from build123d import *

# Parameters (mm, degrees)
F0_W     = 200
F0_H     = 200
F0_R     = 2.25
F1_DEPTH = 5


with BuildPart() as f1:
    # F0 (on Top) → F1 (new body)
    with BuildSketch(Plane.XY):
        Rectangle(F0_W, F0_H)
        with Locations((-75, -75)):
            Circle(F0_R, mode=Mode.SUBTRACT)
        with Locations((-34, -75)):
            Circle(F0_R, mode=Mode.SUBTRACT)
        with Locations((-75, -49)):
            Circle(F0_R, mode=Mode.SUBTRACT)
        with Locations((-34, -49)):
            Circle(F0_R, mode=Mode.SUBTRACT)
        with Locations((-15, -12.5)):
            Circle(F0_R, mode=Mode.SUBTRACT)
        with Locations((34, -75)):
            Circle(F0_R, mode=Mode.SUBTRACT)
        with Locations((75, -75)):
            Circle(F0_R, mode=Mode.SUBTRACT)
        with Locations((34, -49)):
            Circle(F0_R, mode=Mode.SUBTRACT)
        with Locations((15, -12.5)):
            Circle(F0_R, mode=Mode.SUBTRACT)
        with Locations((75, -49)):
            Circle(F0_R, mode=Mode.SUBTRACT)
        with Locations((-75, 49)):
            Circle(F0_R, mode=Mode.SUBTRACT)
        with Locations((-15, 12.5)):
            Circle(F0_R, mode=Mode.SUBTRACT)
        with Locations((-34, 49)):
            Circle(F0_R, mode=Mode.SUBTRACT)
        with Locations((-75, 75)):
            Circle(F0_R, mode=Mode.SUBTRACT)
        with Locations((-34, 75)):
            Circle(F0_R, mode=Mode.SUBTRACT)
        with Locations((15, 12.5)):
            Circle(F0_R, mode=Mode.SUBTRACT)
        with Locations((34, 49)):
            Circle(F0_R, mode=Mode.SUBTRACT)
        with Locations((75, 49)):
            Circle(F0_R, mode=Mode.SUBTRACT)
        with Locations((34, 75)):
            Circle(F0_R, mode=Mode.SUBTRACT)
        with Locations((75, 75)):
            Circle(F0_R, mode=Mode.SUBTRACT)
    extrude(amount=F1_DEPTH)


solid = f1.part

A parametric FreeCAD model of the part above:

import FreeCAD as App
import Part
import Sketcher
from FreeCAD import Vector


def add_polygon(sketch, points):
    """Adds a closed chain of lines whose ends are joined by coincident constraints."""
    first, n = sketch.GeometryCount, len(points)
    for a, b in zip(points, points[1:] + points[:1]):
        sketch.addGeometry(Part.LineSegment(App.Vector(*a, 0), App.Vector(*b, 0)), False)
    for i in range(n):
        sketch.addConstraint(Sketcher.Constraint("Coincident", first + i, 2, first + (i + 1) % n, 1))

doc = App.newDocument("Part")
body = doc.addObject("PartDesign::Body", "Body")

# Sketch on XY plane
sketch1 = doc.addObject("Sketcher::SketchObject", "Sketch")
body.addObject(sketch1)
sketch1.AttachmentSupport = (doc.XY_Plane, [""])
sketch1.MapMode = "FlatFace"
add_polygon(sketch1, [(-100, 100), (-100, -100), (100, -100), (100, 100)])  # lines 0-3
sketch1.addGeometry(Part.Circle(Vector(-75, -75, 0), Vector(0, 0, 1), 2.25), False)  # 4
sketch1.addGeometry(Part.Circle(Vector(-75, -49, 0), Vector(0, 0, 1), 2.25), False)  # 5
sketch1.addGeometry(Part.Circle(Vector(-34, -75, 0), Vector(0, 0, 1), 2.25), False)  # 6
sketch1.addGeometry(Part.Circle(Vector(-34, -49, 0), Vector(0, 0, 1), 2.25), False)  # 7
sketch1.addGeometry(Part.Circle(Vector(-15, -12.5, 0), Vector(0, 0, 1), 2.25), False)  # 8
sketch1.addGeometry(Part.Circle(Vector(34, -75, 0), Vector(0, 0, 1), 2.25), False)  # 9
sketch1.addGeometry(Part.Circle(Vector(34, -49, 0), Vector(0, 0, 1), 2.25), False)  # 10
sketch1.addGeometry(Part.Circle(Vector(75, -75, 0), Vector(0, 0, 1), 2.25), False)  # 11
sketch1.addGeometry(Part.Circle(Vector(75, -49, 0), Vector(0, 0, 1), 2.25), False)  # 12
sketch1.addGeometry(Part.Circle(Vector(15, -12.5, 0), Vector(0, 0, 1), 2.25), False)  # 13
sketch1.addGeometry(Part.Circle(Vector(-15, 12.5, 0), Vector(0, 0, 1), 2.25), False)  # 14
sketch1.addGeometry(Part.Circle(Vector(-75, 49, 0), Vector(0, 0, 1), 2.25), False)  # 15
sketch1.addGeometry(Part.Circle(Vector(-75, 75, 0), Vector(0, 0, 1), 2.25), False)  # 16
sketch1.addGeometry(Part.Circle(Vector(-34, 49, 0), Vector(0, 0, 1), 2.25), False)  # 17
sketch1.addGeometry(Part.Circle(Vector(-34, 75, 0), Vector(0, 0, 1), 2.25), False)  # 18
sketch1.addGeometry(Part.Circle(Vector(15, 12.5, 0), Vector(0, 0, 1), 2.25), False)  # 19
sketch1.addGeometry(Part.Circle(Vector(34, 49, 0), Vector(0, 0, 1), 2.25), False)  # 20
sketch1.addGeometry(Part.Circle(Vector(34, 75, 0), Vector(0, 0, 1), 2.25), False)  # 21
sketch1.addGeometry(Part.Circle(Vector(75, 49, 0), Vector(0, 0, 1), 2.25), False)  # 22
sketch1.addGeometry(Part.Circle(Vector(75, 75, 0), Vector(0, 0, 1), 2.25), False)  # 23
sketch1.addConstraint(Sketcher.Constraint("Vertical", 0))
sketch1.addConstraint(Sketcher.Constraint("Horizontal", 1))
sketch1.addConstraint(Sketcher.Constraint("Vertical", 2))
sketch1.addConstraint(Sketcher.Constraint("Horizontal", 3))
sketch1.addConstraint(Sketcher.Constraint("Equal", 4, 5))
sketch1.addConstraint(Sketcher.Constraint("Equal", 5, 6))
sketch1.addConstraint(Sketcher.Constraint("Equal", 6, 7))
sketch1.addConstraint(Sketcher.Constraint("Equal", 7, 8))
sketch1.addConstraint(Sketcher.Constraint("Equal", 8, 9))
sketch1.addConstraint(Sketcher.Constraint("Equal", 9, 10))
sketch1.addConstraint(Sketcher.Constraint("Equal", 10, 11))
sketch1.addConstraint(Sketcher.Constraint("Equal", 11, 12))
sketch1.addConstraint(Sketcher.Constraint("Equal", 12, 13))
sketch1.addConstraint(Sketcher.Constraint("Equal", 13, 14))
sketch1.addConstraint(Sketcher.Constraint("Equal", 14, 15))
sketch1.addConstraint(Sketcher.Constraint("Equal", 15, 16))
sketch1.addConstraint(Sketcher.Constraint("Equal", 16, 17))
sketch1.addConstraint(Sketcher.Constraint("Equal", 17, 18))
sketch1.addConstraint(Sketcher.Constraint("Equal", 18, 19))
sketch1.addConstraint(Sketcher.Constraint("Equal", 19, 20))
sketch1.addConstraint(Sketcher.Constraint("Equal", 20, 21))
sketch1.addConstraint(Sketcher.Constraint("Equal", 21, 22))
sketch1.addConstraint(Sketcher.Constraint("Equal", 22, 23))
sketch1.addConstraint(Sketcher.Constraint("Symmetric", 13, 3, 14, 3, -1, 1))
sketch1.addConstraint(Sketcher.Constraint("Symmetric", 12, 3, 15, 3, -1, 1))
sketch1.addConstraint(Sketcher.Constraint("Symmetric", 11, 3, 16, 3, -1, 1))
sketch1.addConstraint(Sketcher.Constraint("Symmetric", 10, 3, 17, 3, -1, 1))
sketch1.addConstraint(Sketcher.Constraint("Symmetric", 9, 3, 18, 3, -1, 1))
sketch1.addConstraint(Sketcher.Constraint("Symmetric", 8, 3, 19, 3, -1, 1))
sketch1.addConstraint(Sketcher.Constraint("Symmetric", 7, 3, 20, 3, -1, 1))
sketch1.addConstraint(Sketcher.Constraint("Symmetric", 6, 3, 21, 3, -1, 1))
sketch1.addConstraint(Sketcher.Constraint("Symmetric", 5, 3, 22, 3, -1, 1))
sketch1.addConstraint(Sketcher.Constraint("Symmetric", 4, 3, 23, 3, -1, 1))
sketch1.addConstraint(Sketcher.Constraint("Symmetric", 0, 2, 2, 2, -1, 1))
sketch1.addConstraint(Sketcher.Constraint("Symmetric", 6, 3, 9, 3, -2))
sketch1.addConstraint(Sketcher.Constraint("Symmetric", 7, 3, 10, 3, -2))
sketch1.addConstraint(Sketcher.Constraint("Symmetric", 4, 3, 11, 3, -2))
sketch1.addConstraint(Sketcher.Constraint("Symmetric", 5, 3, 12, 3, -2))
sketch1.addConstraint(Sketcher.Constraint("Symmetric", 8, 3, 13, 3, -2))
sketch1.addConstraint(Sketcher.Constraint("Horizontal", 4, 3, 6, 3))
sketch1.addConstraint(Sketcher.Constraint("Horizontal", 5, 3, 7, 3))
sketch1.addConstraint(Sketcher.Constraint("Vertical", 4, 3, 5, 3))
sketch1.addConstraint(Sketcher.Constraint("Vertical", 6, 3, 7, 3))
sketch1.addConstraint(Sketcher.Constraint("Equal", 3, 0))
sketch1.addConstraint(Sketcher.Constraint("Diameter", 4, 4.5))
sketch1.addConstraint(Sketcher.Constraint("DistanceX", 1, 1, 1, 2, 200.0))
sketch1.addConstraint(Sketcher.Constraint("DistanceX", 4, 3, -1, 1, 75.0))
sketch1.addConstraint(Sketcher.Constraint("DistanceY", 4, 3, -1, 1, 75.0))
sketch1.addConstraint(Sketcher.Constraint("DistanceY", 5, 3, -1, 1, 49.0))
sketch1.addConstraint(Sketcher.Constraint("DistanceX", 6, 3, -1, 1, 34.0))
sketch1.addConstraint(Sketcher.Constraint("DistanceX", 8, 3, -1, 1, 15.0))
sketch1.addConstraint(Sketcher.Constraint("DistanceY", 8, 3, 14, 3, 25.0))
pad1 = doc.addObject("PartDesign::Pad", "Pad")
body.addObject(pad1)
pad1.Profile = sketch1
pad1.Length = 5

doc.recompute()
